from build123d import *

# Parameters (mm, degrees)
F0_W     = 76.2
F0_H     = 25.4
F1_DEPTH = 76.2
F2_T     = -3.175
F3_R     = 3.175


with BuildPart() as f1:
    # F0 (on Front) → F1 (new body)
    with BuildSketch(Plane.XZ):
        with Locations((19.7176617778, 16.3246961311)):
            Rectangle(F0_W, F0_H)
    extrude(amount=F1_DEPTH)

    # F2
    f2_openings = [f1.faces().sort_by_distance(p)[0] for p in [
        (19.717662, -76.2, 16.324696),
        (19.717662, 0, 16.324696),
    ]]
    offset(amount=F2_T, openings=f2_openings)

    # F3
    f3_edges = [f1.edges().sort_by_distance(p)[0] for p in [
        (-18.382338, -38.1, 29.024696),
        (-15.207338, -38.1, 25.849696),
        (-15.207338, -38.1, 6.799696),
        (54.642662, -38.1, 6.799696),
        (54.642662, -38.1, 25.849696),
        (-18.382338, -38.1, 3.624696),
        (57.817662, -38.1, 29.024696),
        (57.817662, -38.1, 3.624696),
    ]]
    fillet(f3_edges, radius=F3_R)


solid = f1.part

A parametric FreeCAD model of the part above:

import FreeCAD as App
import Part
import Sketcher

V = App.Vector
Q = App.Units.Quantity


def edges_at(feature, points):
    """Names of the edges that pass closest to the given points."""
    edges = feature.Shape.Edges
    near = lambda p: min(range(len(edges)), key=lambda i: edges[i].distToShape(Part.Vertex(*p))[0])
    return sorted({f"Edge{near(p) + 1}" for p in points})


def faces_at(feature, points):
    """Names of the faces that lie closest to the given points."""
    faces = feature.Shape.Faces
    near = lambda p: min(range(len(faces)), key=lambda i: faces[i].distToShape(Part.Vertex(*p))[0])
    return sorted({f"Face{near(p) + 1}" for p in points})

doc = App.newDocument("Part")
params = doc.addObject("Spreadsheet::Sheet", "Params")
for row, (alias, value) in enumerate([
    ("sketch1_width", "3 in"),
    ("sketch1_height", "1 in"),
    ("pad1_length", "3 in"),
    ("thickness_wall", "0.125 in"),
    ("fillet_radius", "0.125 in"),
], start=1):
    params.set(f"A{row}", alias)
    params.set(f"B{row}", "=" + value)
    params.setAlias(f"B{row}", alias)

body = doc.addObject("PartDesign::Body", "Body")

# Sketch on XZ plane
sketch1 = body.newObject("Sketcher::SketchObject", "Sketch")
sketch1.AttachmentSupport = (doc.getObject("XZ_Plane"), [""])
sketch1.MapMode = "FlatFace"
sketch1.addGeometry(Part.LineSegment(V(-18.382338, 29.024696, 0), V(-18.382338, 3.624696, 0)), False)
sketch1.addGeometry(Part.LineSegment(V(-18.382338, 3.624696, 0), V(57.817662, 3.624696, 0)), False)
sketch1.addGeometry(Part.LineSegment(V(57.817662, 3.624696, 0), V(57.817662, 29.024696, 0)), False)
sketch1.addGeometry(Part.LineSegment(V(57.817662, 29.024696, 0), V(-18.382338, 29.024696, 0)), False)
sketch1.addConstraint(Sketcher.Constraint("Coincident", 0, 2, 1, 1))
sketch1.addConstraint(Sketcher.Constraint("Coincident", 1, 2, 2, 1))
sketch1.addConstraint(Sketcher.Constraint("Coincident", 2, 2, 3, 1))
sketch1.addConstraint(Sketcher.Constraint("Coincident", 3, 2, 0, 1))
sketch1.addConstraint(Sketcher.Constraint("Vertical", 0))
sketch1.addConstraint(Sketcher.Constraint("Horizontal", 1))
sketch1.addConstraint(Sketcher.Constraint("Vertical", 2))
sketch1.addConstraint(Sketcher.Constraint("Horizontal", 3))
sketch1.addConstraint(Sketcher.Constraint("DistanceX", 1, 1, 1, 2, Q("3 in")))
sketch1.addConstraint(Sketcher.Constraint("DistanceY", 0, 2, 0, 1, Q("1 in")))
sketch1.addConstraint(Sketcher.Constraint("DistanceX", 0, 2, -1, 1, Q("18.382338 mm")))
sketch1.addConstraint(Sketcher.Constraint("DistanceY", -1, 1, 0, 2, Q("3.624696 mm")))
sketch1.setExpression("Constraints[8]", "Params.sketch1_width")
sketch1.setExpression("Constraints[9]", "Params.sketch1_height")
pad1 = body.newObject("PartDesign::Pad", "Pad")
pad1.Profile = sketch1
pad1.setExpression("Length", "Params.pad1_length")
doc.recompute()

thickness = body.newObject("PartDesign::Thickness", "Thickness")
thickness.Base = (pad1, faces_at(pad1, [(19.718, -76.2, 16.325), (19.718, 0, 16.325)]))
thickness.setExpression("Value", "Params.thickness_wall")
thickness.Reversed = True
thickness.Join = "Arc"
doc.recompute()

fillet = body.newObject("PartDesign::Fillet", "Fillet")
fillet.Base = (thickness, edges_at(thickness, [
    (-18.382, -38.1, 29.025),
    (-15.207, -38.1, 25.85),
    (-15.207, -38.1, 6.8),
    (54.643, -38.1, 6.8),
    (54.643, -38.1, 25.85),
    (-18.382, -38.1, 3.625),
    (57.818, -38.1, 29.025),
    (57.818, -38.1, 3.625),
]))
fillet.setExpression("Radius", "Params.fillet_radius")

doc.recompute()
